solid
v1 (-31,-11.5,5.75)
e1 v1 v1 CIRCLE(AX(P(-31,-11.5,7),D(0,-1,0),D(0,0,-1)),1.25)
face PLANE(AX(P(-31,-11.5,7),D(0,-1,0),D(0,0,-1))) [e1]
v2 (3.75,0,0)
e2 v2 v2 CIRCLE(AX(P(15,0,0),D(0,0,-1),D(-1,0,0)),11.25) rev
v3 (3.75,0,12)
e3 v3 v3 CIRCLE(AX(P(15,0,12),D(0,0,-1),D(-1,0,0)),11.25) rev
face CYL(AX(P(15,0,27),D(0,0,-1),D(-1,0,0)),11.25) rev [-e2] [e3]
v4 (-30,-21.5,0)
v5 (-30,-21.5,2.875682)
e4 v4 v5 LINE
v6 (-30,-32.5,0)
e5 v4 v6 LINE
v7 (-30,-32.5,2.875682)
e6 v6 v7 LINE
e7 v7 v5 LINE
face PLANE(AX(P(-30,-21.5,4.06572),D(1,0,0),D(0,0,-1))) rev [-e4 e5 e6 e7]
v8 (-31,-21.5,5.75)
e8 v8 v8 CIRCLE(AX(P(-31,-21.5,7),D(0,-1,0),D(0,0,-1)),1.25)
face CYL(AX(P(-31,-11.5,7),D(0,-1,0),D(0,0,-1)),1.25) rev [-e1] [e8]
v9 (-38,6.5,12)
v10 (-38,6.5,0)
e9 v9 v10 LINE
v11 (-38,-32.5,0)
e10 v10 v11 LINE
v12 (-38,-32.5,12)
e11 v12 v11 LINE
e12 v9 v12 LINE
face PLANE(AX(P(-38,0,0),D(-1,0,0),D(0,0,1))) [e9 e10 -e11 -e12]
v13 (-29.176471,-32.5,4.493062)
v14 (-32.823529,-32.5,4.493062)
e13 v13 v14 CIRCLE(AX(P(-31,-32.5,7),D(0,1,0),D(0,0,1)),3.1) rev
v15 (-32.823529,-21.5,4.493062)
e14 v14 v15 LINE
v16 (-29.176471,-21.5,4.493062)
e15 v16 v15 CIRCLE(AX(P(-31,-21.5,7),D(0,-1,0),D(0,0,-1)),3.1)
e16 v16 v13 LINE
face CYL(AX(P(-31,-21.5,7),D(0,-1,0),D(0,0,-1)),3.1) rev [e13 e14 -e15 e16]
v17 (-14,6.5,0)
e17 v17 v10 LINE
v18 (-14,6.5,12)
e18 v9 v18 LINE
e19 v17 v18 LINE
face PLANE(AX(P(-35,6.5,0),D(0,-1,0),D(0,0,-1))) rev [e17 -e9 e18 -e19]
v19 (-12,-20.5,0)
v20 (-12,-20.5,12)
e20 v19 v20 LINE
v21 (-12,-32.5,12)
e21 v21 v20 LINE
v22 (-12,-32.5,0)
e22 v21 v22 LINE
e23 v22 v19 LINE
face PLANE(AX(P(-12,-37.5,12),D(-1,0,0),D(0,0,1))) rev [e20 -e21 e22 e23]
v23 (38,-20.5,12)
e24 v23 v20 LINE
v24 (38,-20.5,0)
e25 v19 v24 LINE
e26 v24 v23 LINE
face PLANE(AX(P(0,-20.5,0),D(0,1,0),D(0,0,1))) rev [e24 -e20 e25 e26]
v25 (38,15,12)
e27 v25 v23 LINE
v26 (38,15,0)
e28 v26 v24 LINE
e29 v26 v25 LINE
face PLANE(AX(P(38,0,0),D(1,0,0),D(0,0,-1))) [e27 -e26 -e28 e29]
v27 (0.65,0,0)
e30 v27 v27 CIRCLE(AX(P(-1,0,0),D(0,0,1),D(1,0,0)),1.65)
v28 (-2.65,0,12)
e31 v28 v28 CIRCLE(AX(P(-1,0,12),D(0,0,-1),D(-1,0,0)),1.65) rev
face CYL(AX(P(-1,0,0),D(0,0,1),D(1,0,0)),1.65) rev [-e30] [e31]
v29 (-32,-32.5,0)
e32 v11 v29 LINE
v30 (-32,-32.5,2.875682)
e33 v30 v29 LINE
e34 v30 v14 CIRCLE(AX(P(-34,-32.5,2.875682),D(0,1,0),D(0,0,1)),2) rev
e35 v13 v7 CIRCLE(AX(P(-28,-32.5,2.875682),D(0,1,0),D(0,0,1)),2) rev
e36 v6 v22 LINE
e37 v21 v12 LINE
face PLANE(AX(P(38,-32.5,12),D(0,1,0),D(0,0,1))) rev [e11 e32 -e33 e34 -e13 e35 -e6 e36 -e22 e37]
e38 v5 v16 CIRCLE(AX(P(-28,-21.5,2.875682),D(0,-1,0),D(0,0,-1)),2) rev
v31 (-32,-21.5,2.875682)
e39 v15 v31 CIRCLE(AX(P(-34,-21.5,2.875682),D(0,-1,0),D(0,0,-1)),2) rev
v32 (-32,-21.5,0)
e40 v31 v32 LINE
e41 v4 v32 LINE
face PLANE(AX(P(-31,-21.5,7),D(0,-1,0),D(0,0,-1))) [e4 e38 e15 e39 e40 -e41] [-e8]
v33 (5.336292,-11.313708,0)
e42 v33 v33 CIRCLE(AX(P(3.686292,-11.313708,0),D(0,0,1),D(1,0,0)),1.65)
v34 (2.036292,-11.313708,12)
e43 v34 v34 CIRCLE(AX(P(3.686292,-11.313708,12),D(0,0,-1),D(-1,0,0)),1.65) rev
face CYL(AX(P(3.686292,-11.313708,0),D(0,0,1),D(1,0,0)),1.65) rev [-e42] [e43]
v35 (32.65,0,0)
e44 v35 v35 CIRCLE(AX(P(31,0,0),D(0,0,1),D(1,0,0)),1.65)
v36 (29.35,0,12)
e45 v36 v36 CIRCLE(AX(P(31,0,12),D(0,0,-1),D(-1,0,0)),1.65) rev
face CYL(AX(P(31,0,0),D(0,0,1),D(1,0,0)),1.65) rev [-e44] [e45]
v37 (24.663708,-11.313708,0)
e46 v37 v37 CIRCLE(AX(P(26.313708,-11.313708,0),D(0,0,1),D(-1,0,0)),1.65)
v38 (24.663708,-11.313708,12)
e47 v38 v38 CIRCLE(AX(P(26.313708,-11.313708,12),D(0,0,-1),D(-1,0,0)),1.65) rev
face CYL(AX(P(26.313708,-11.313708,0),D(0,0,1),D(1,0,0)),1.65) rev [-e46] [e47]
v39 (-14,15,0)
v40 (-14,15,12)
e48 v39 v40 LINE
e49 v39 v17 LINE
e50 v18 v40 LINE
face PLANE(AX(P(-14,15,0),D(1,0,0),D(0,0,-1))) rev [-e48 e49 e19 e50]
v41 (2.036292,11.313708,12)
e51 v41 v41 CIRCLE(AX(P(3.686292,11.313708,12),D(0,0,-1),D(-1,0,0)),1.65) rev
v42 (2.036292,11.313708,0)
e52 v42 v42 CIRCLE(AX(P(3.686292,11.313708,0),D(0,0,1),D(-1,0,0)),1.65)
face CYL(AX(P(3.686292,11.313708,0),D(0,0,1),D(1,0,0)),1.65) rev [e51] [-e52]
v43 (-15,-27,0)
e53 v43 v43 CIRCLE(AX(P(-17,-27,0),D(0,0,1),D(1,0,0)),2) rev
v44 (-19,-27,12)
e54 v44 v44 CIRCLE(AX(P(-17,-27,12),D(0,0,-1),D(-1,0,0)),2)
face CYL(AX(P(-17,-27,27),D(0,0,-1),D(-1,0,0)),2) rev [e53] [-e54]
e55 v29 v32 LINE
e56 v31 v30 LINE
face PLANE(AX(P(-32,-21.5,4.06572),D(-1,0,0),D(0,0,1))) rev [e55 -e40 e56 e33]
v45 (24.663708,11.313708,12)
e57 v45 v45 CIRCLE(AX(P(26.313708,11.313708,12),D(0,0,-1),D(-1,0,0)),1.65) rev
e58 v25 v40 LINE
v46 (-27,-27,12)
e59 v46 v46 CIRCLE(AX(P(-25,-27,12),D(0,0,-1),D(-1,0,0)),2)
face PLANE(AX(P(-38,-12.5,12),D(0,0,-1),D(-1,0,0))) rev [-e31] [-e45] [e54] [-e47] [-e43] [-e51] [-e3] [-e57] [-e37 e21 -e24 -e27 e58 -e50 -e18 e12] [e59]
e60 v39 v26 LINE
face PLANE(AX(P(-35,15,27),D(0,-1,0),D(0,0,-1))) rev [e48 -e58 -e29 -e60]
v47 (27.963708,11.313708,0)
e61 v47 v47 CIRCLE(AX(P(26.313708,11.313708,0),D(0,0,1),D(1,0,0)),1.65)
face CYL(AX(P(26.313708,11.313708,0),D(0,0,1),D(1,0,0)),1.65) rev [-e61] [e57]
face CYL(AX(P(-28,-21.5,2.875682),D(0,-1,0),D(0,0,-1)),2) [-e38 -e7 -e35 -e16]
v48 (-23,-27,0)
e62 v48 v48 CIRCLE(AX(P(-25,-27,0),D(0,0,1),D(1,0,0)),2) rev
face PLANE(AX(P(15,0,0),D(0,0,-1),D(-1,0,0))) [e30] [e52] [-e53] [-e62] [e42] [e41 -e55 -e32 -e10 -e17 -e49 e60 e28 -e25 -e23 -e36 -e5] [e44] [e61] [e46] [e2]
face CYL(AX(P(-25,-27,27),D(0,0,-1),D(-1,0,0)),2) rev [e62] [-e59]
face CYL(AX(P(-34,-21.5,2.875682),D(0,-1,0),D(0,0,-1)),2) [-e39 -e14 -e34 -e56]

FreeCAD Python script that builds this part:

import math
import FreeCAD as App
import Part
import Sketcher

V = App.Vector


def edges_at(feature, points):
    """Names of the edges that pass closest to the given points."""
    edges = feature.Shape.Edges
    near = lambda p: min(range(len(edges)), key=lambda i: edges[i].distToShape(Part.Vertex(*p))[0])
    return sorted({f"Edge{near(p) + 1}" for p in points})

doc = App.newDocument("Part")
body = doc.addObject("PartDesign::Body", "Body")

sketch1 = body.newObject("Sketcher::SketchObject", "Sketch")
sketch1.AttachmentSupport = (doc.getObject("XY_Plane"), [""])
sketch1.MapMode = "FlatFace"
sketch1.addGeometry([
    Part.LineSegment(V(-35, 15, 0), V(-35, -15, 0)),
    Part.LineSegment(V(-35, -15, 0), V(35, -15, 0)),
    Part.LineSegment(V(35, -15, 0), V(35, 15, 0)),
    Part.LineSegment(V(35, 15, 0), V(-35, 15, 0)),
], False)
sketch1.addConstraint([
    Sketcher.Constraint("Coincident", 0, 2, 1, 1),
    Sketcher.Constraint("Coincident", 1, 2, 2, 1),
    Sketcher.Constraint("Coincident", 2, 2, 3, 1),
    Sketcher.Constraint("Coincident", 3, 2, 0, 1),
    Sketcher.Constraint("Vertical", 0),
    Sketcher.Constraint("Horizontal", 1),
    Sketcher.Constraint("Vertical", 2),
    Sketcher.Constraint("Horizontal", 3),
    Sketcher.Constraint("Symmetric", 0, 2, 2, 2, -1, 1),
    Sketcher.Constraint("DistanceX", 1, 1, 1, 2, 70.0),
    Sketcher.Constraint("DistanceY", 0, 2, 0, 1, 30.0),
])
pad1 = body.newObject("PartDesign::Pad", "Pad")
pad1.Profile = sketch1
pad1.Length = 27

sketch2 = body.newObject("Sketcher::SketchObject", "Sketch001")
sketch2.AttachmentSupport = (doc.getObject("XY_Plane"), [""])
sketch2.MapMode = "FlatFace"
sketch2.AttachmentOffset = App.Placement(V(0, 0, 27), App.Rotation())
sketch2.addGeometry([
    Part.LineSegment(V(28.228757, -15, 0), V(35, -15, 0)),
    Part.LineSegment(V(35, -15, 0), V(35, 0, 0)),
    Part.ArcOfCircle(Part.Circle(V(15, 0, 0), V(0, 0, 1), 20), math.radians(-48.590378), math.radians(0)),
    Part.ArcOfCircle(Part.Circle(V(15, 0, 0), V(0, 0, 1), 20), math.radians(0), math.radians(48.590378)),
    Part.LineSegment(V(35, 0, 0), V(35, 15, 0)),
    Part.LineSegment(V(35, 15, 0), V(28.228757, 15, 0)),
], False)
sketch2.addConstraint([
    Sketcher.Constraint("Coincident", 0, 2, 1, 1),
    Sketcher.Constraint("Tangent", 1, 2, 2, 2),
    Sketcher.Constraint("Coincident", 2, 1, 0, 1),
    Sketcher.Constraint("Tangent", 3, 1, 4, 1),
    Sketcher.Constraint("Coincident", 4, 2, 5, 1),
    Sketcher.Constraint("Coincident", 5, 2, 3, 2),
    Sketcher.Constraint("Horizontal", 0),
    Sketcher.Constraint("Vertical", 1),
    Sketcher.Constraint("Vertical", 4),
    Sketcher.Constraint("Horizontal", 5),
    Sketcher.Constraint("Coincident", 3, 3, 2, 3),
    Sketcher.Constraint("Equal", 2, 3),
    Sketcher.Constraint("Symmetric", 2, 1, 5, 2, -1),
    Sketcher.Constraint("Radius", 2, 20.0),
    Sketcher.Constraint("DistanceY", 1, 1, 1, 2, 15.0),
    Sketcher.Constraint("DistanceX", -1, 1, 2, 3, 15.0),
])
pocket1 = body.newObject("PartDesign::Pocket", "Pocket")
pocket1.Profile = sketch2
pocket1.Type = "ThroughAll"

sketch3 = body.newObject("Sketcher::SketchObject", "Sketch002")
sketch3.AttachmentSupport = (doc.getObject("XY_Plane"), [""])
sketch3.MapMode = "FlatFace"
sketch3.AttachmentOffset = App.Placement(V(0, 0, 27), App.Rotation())
sketch3.addGeometry([
    Part.Circle(V(31, 0, 0), V(0, 0, 1), 1.65),
    Part.Circle(V(26.313708, 11.313708, 0), V(0, 0, 1), 1.65),
    Part.Circle(V(26.313708, -11.313708, 0), V(0, 0, 1), 1.65),
    Part.Circle(V(3.686292, 11.313708, 0), V(0, 0, 1), 1.65),
    Part.Circle(V(3.686292, -11.313708, 0), V(0, 0, 1), 1.65),
    Part.Circle(V(-1, 0, 0), V(0, 0, 1), 1.65),
], False)
sketch3.addConstraint([
    Sketcher.Constraint("Equal", 0, 1),
    Sketcher.Constraint("Equal", 1, 2),
    Sketcher.Constraint("Equal", 2, 3),
    Sketcher.Constraint("Equal", 3, 4),
    Sketcher.Constraint("Equal", 4, 5),
    Sketcher.Constraint("Symmetric", 1, 3, 2, 3, -1),
    Sketcher.Constraint("Symmetric", 3, 3, 4, 3, -1),
    Sketcher.Constraint("PointOnObject", 0, 3, -1),
    Sketcher.Constraint("PointOnObject", 5, 3, -1),
    Sketcher.Constraint("Horizontal", 1, 3, 3, 3),
    Sketcher.Constraint("Diameter", 0, 3.3),
    Sketcher.Constraint("DistanceX", -1, 1, 0, 3, 31.0),
    Sketcher.Constraint("DistanceX", 5, 3, -1, 1, 1.0),
    Sketcher.Constraint("DistanceX", -1, 1, 1, 3, 26.313708),
    Sketcher.Constraint("DistanceY", -1, 1, 1, 3, 11.313708),
    Sketcher.Constraint("DistanceX", -1, 1, 3, 3, 3.686292),
])
pocket2 = body.newObject("PartDesign::Pocket", "Pocket001")
pocket2.Profile = sketch3
pocket2.Type = "ThroughAll"

sketch4 = body.newObject("Sketcher::SketchObject", "Sketch003")
sketch4.AttachmentSupport = (doc.getObject("XY_Plane"), [""])
sketch4.MapMode = "FlatFace"
sketch4.AttachmentOffset = App.Placement(V(0, 0, 27), App.Rotation())
sketch4.addGeometry([
    Part.LineSegment(V(-35, 15, 0), V(-35, 6.5, 0)),
    Part.LineSegment(V(-35, 6.5, 0), V(-14, 6.5, 0)),
    Part.LineSegment(V(-14, 6.5, 0), V(-14, 15, 0)),
    Part.LineSegment(V(-14, 15, 0), V(-35, 15, 0)),
], False)
sketch4.addConstraint([
    Sketcher.Constraint("Coincident", 0, 2, 1, 1),
    Sketcher.Constraint("Coincident", 1, 2, 2, 1),
    Sketcher.Constraint("Coincident", 2, 2, 3, 1),
    Sketcher.Constraint("Coincident", 3, 2, 0, 1),
    Sketcher.Constraint("Vertical", 0),
    Sketcher.Constraint("Horizontal", 1),
    Sketcher.Constraint("Vertical", 2),
    Sketcher.Constraint("Horizontal", 3),
    Sketcher.Constraint("DistanceX", 1, 1, 1, 2, 21.0),
    Sketcher.Constraint("DistanceY", 0, 2, 0, 1, 8.5),
    Sketcher.Constraint("DistanceX", 0, 2, -1, 1, 35.0),
    Sketcher.Constraint("DistanceY", -1, 1, 2, 2, 15.0),
])
pocket3 = body.newObject("PartDesign::Pocket", "Pocket002")
pocket3.Profile = sketch4
pocket3.Type = "ThroughAll"

sketch5 = body.newObject("Sketcher::SketchObject", "Sketch004")
sketch5.AttachmentSupport = (doc.getObject("XY_Plane"), [""])
sketch5.MapMode = "FlatFace"
sketch5.addGeometry(Part.Circle(V(15, 0, 0), V(0, 0, 1), 11.25), False)
sketch5.addConstraint([
    Sketcher.Constraint("PointOnObject", 0, 3, -1),
    Sketcher.Constraint("Diameter", 0, 22.5),
    Sketcher.Constraint("DistanceX", -1, 1, 0, 3, 15.0),
])
pocket4 = body.newObject("PartDesign::Pocket", "Pocket003")
pocket4.Profile = sketch5
pocket4.Type = "ThroughAll"
pocket4.Reversed = True

sketch6 = body.newObject("Sketcher::SketchObject", "Sketch005")
sketch6.AttachmentSupport = (doc.getObject("XY_Plane"), [""])
sketch6.MapMode = "FlatFace"
sketch6.addGeometry([
    Part.LineSegment(V(-13.5, 6.5, 0), V(-13.5, -15, 0)),
    Part.LineSegment(V(-13.5, -15, 0), V(-35, -15, 0)),
    Part.LineSegment(V(-35, -15, 0), V(-35, 6.5, 0)),
    Part.LineSegment(V(-35, 6.5, 0), V(-13.5, 6.5, 0)),
], False)
sketch6.addConstraint([
    Sketcher.Constraint("Coincident", 0, 2, 1, 1),
    Sketcher.Constraint("Coincident", 1, 2, 2, 1),
    Sketcher.Constraint("Coincident", 2, 2, 3, 1),
    Sketcher.Constraint("Coincident", 3, 2, 0, 1),
    Sketcher.Constraint("Vertical", 0),
    Sketcher.Constraint("Horizontal", 1),
    Sketcher.Constraint("Vertical", 2),
    Sketcher.Constraint("Horizontal", 3),
    Sketcher.Constraint("Equal", 3, 0),
    Sketcher.Constraint("DistanceX", 1, 2, 1, 1, 21.5),
    Sketcher.Constraint("DistanceY", 0, 2, -1, 1, 15.0),
    Sketcher.Constraint("DistanceX", 1, 2, -1, 1, 35.0),
])
pad2 = body.newObject("PartDesign::Pad", "Pad001")
pad2.Profile = sketch6
pad2.Length = 8
pad2.Reversed = True

sketch7 = body.newObject("Sketcher::SketchObject", "Sketch006")
sketch7.AttachmentSupport = (doc.getObject("XZ_Plane"), [""])
sketch7.MapMode = "FlatFace"
sketch7.AttachmentOffset = App.Placement(V(0, 0, 15), App.Rotation())
sketch7.addGeometry([
    Part.Circle(V(-17.5, 19.95, 0), V(0, 0, 1), 1.5),
    Part.Circle(V(-32.5, 19.95, 0), V(0, 0, 1), 1.5),
], False)
sketch7.addConstraint([
    Sketcher.Constraint("Equal", 0, 1),
    Sketcher.Constraint("Horizontal", 0, 3, 1, 3),
    Sketcher.Constraint("Diameter", 0, 3.0),
    Sketcher.Constraint("DistanceX", 1, 3, 0, 3, 15.0),
    Sketcher.Constraint("DistanceX", 0, 3, -1, 1, 17.5),
    Sketcher.Constraint("DistanceY", -1, 1, 0, 3, 19.95),
])
pocket5 = body.newObject("PartDesign::Pocket", "Pocket004")
pocket5.Profile = sketch7
pocket5.Type = "ThroughAll"

sketch8 = body.newObject("Sketcher::SketchObject", "Sketch007")
sketch8.AttachmentSupport = (doc.getObject("YZ_Plane"), [""])
sketch8.MapMode = "FlatFace"
sketch8.AttachmentOffset = App.Placement(V(0, 0, -35), App.Rotation())
sketch8.addGeometry([
    Part.LineSegment(V(6.5, -8, 0), V(-15, -8, 0)),
    Part.LineSegment(V(-15, -8, 0), V(-15, 27, 0)),
    Part.LineSegment(V(-15, 27, 0), V(6.5, 27, 0)),
    Part.LineSegment(V(6.5, 27, 0), V(6.5, -8, 0)),
], False)
sketch8.addConstraint([
    Sketcher.Constraint("Coincident", 0, 2, 1, 1),
    Sketcher.Constraint("Coincident", 1, 2, 2, 1),
    Sketcher.Constraint("Coincident", 2, 2, 3, 1),
    Sketcher.Constraint("Coincident", 3, 2, 0, 1),
    Sketcher.Constraint("Horizontal", 0),
    Sketcher.Constraint("Vertical", 1),
    Sketcher.Constraint("Horizontal", 2),
    Sketcher.Constraint("Vertical", 3),
    Sketcher.Constraint("DistanceY", 1, 1, 1, 2, 35.0),
    Sketcher.Constraint("DistanceX", 0, 2, 0, 1, 21.5),
    Sketcher.Constraint("DistanceX", 0, 2, -1, 1, 15.0),
    Sketcher.Constraint("DistanceY", 0, 2, -1, 1, 8.0),
])
pad3 = body.newObject("PartDesign::Pad", "Pad002")
pad3.Profile = sketch8
pad3.Length = 3
pad3.Reversed = True

sketch9 = body.newObject("Sketcher::SketchObject", "Sketch008")
sketch9.AttachmentSupport = (doc.getObject("XZ_Plane"), [""])
sketch9.MapMode = "FlatFace"
sketch9.AttachmentOffset = App.Placement(V(0, 0, 15), App.Rotation())
sketch9.addGeometry([
    Part.Circle(V(-32.5, 19.95, 0), V(0, 0, 1), 3),
    Part.Circle(V(-17.5, 19.95, 0), V(0, 0, 1), 3),
], False)
sketch9.addConstraint([
    Sketcher.Constraint("Equal", 0, 1),
    Sketcher.Constraint("Horizontal", 0, 3, 1, 3),
    Sketcher.Constraint("Diameter", 0, 6.0),
    Sketcher.Constraint("DistanceX", 0, 3, 1, 3, 15.0),
    Sketcher.Constraint("DistanceX", 0, 3, -1, 1, 32.5),
    Sketcher.Constraint("DistanceY", -1, 1, 0, 3, 19.95),
])
pocket6 = body.newObject("PartDesign::Pocket", "Pocket005")
pocket6.Profile = sketch9
pocket6.Length = 15

sketch10 = body.newObject("Sketcher::SketchObject", "Sketch009")
sketch10.AttachmentSupport = (doc.getObject("XY_Plane"), [""])
sketch10.MapMode = "FlatFace"
sketch10.AttachmentOffset = App.Placement(V(0, 0, 27), App.Rotation())
sketch10.addGeometry([
    Part.LineSegment(V(28.228757, -15, 0), V(35, -15, 0)),
    Part.LineSegment(V(35, -15, 0), V(35, 15, 0)),
    Part.LineSegment(V(35, 15, 0), V(28.228757, 15, 0)),
    Part.LineSegment(V(28.228757, 15, 0), V(28.228757, -15, 0)),
    Part.Circle(V(31, 0, 0), V(0, 0, 1), 1.65),
], False)
sketch10.addConstraint([
    Sketcher.Constraint("Coincident", 0, 2, 1, 1),
    Sketcher.Constraint("Coincident", 1, 2, 2, 1),
    Sketcher.Constraint("Coincident", 2, 2, 3, 1),
    Sketcher.Constraint("Coincident", 3, 2, 0, 1),
    Sketcher.Constraint("Horizontal", 0),
    Sketcher.Constraint("Vertical", 1),
    Sketcher.Constraint("Horizontal", 2),
    Sketcher.Constraint("Vertical", 3),
    Sketcher.Constraint("PointOnObject", 4, 3, -1),
    Sketcher.Constraint("Diameter", 4, 3.3),
    Sketcher.Constraint("DistanceY", 1, 1, 1, 2, 30.0),
    Sketcher.Constraint("DistanceX", -1, 1, 4, 3, 31.0),
    Sketcher.Constraint("DistanceX", -1, 1, 0, 2, 35.0),
    Sketcher.Constraint("DistanceY", 0, 2, -1, 1, 15.0),
    Sketcher.Constraint("DistanceX", 0, 1, 0, 2, 6.771243),
])
pad4 = body.newObject("PartDesign::Pad", "Pad003")
pad4.Profile = sketch10
pad4.Length = 27
pad4.Reversed = True

sketch11 = body.newObject("Sketcher::SketchObject", "Sketch010")
sketch11.AttachmentSupport = (doc.getObject("YZ_Plane"), [""])
sketch11.MapMode = "FlatFace"
sketch11.AttachmentOffset = App.Placement(V(0, 0, 35), App.Rotation())
sketch11.addGeometry([
    Part.LineSegment(V(15, 27, 0), V(-15, 27, 0)),
    Part.LineSegment(V(-15, 27, 0), V(-15, 0, 0)),
    Part.LineSegment(V(-15, 0, 0), V(15, 0, 0)),
    Part.LineSegment(V(15, 0, 0), V(15, 27, 0)),
], False)
sketch11.addConstraint([
    Sketcher.Constraint("Coincident", 0, 2, 1, 1),
    Sketcher.Constraint("Coincident", 1, 2, 2, 1),
    Sketcher.Constraint("Coincident", 2, 2, 3, 1),
    Sketcher.Constraint("Coincident", 3, 2, 0, 1),
    Sketcher.Constraint("Horizontal", 0),
    Sketcher.Constraint("Vertical", 1),
    Sketcher.Constraint("Horizontal", 2),
    Sketcher.Constraint("Vertical", 3),
    Sketcher.Constraint("Symmetric", 1, 2, 2, 2, -1, 1),
    Sketcher.Constraint("DistanceX", 0, 2, 0, 1, 30.0),
    Sketcher.Constraint("DistanceY", 1, 2, 1, 1, 27.0),
])
pad5 = body.newObject("PartDesign::Pad", "Pad004")
pad5.Profile = sketch11
pad5.Length = 3

sketch12 = body.newObject("Sketcher::SketchObject", "Sketch011")
sketch12.AttachmentSupport = (doc.getObject("XZ_Plane"), [""])
sketch12.MapMode = "FlatFace"
sketch12.AttachmentOffset = App.Placement(V(0, 0, 20.5), App.Rotation())
sketch12.addGeometry([
    Part.LineSegment(V(-13.5, 0, 0), V(38, 0, 0)),
    Part.LineSegment(V(38, 0, 0), V(38, 27, 0)),
    Part.LineSegment(V(38, 27, 0), V(-38, 27, 0)),
    Part.LineSegment(V(-38, 27, 0), V(-38, -8, 0)),
    Part.LineSegment(V(-38, -8, 0), V(-13.5, -8, 0)),
    Part.LineSegment(V(-13.5, -8, 0), V(-13.5, 0, 0)),
    Part.Circle(V(-32.5, 19.95, 0), V(0, 0, 1), 3),
    Part.Circle(V(-17.5, 19.95, 0), V(0, 0, 1), 3),
], False)
sketch12.addConstraint([
    Sketcher.Constraint("Coincident", 0, 2, 1, 1),
    Sketcher.Constraint("Coincident", 1, 2, 2, 1),
    Sketcher.Constraint("Coincident", 2, 2, 3, 1),
    Sketcher.Constraint("Coincident", 3, 2, 4, 1),
    Sketcher.Constraint("Coincident", 4, 2, 5, 1),
    Sketcher.Constraint("Coincident", 5, 2, 0, 1),
    Sketcher.Constraint("Horizontal", 0),
    Sketcher.Constraint("Vertical", 1),
    Sketcher.Constraint("Horizontal", 2),
    Sketcher.Constraint("Vertical", 3),
    Sketcher.Constraint("Horizontal", 4),
    Sketcher.Constraint("Vertical", 5),
    Sketcher.Constraint("Equal", 6, 7),
    Sketcher.Constraint("PointOnObject", 0, 2, -1),
    Sketcher.Constraint("Horizontal", 6, 3, 7, 3),
    Sketcher.Constraint("Diameter", 6, 6.0),
    Sketcher.Constraint("DistanceX", 2, 2, 2, 1, 76.0),
    Sketcher.Constraint("DistanceY", 1, 1, 1, 2, 27.0),
    Sketcher.Constraint("DistanceY", 3, 2, 3, 1, 35.0),
    Sketcher.Constraint("DistanceX", 0, 1, 0, 2, 51.5),
    Sketcher.Constraint("DistanceX", -1, 1, 0, 2, 38.0),
    Sketcher.Constraint("DistanceX", 6, 3, 7, 3, 15.0),
    Sketcher.Constraint("DistanceX", 7, 3, 4, 2, 4.0),
    Sketcher.Constraint("DistanceY", -1, 1, 6, 3, 19.95),
])
pad6 = body.newObject("PartDesign::Pad", "Pad005")
pad6.Profile = sketch12
pad6.Length = 5.5
pad6.Reversed = True

sketch13 = body.newObject("Sketcher::SketchObject", "Sketch012")
sketch13.AttachmentSupport = (doc.getObject("XZ_Plane"), [""])
sketch13.MapMode = "FlatFace"
sketch13.AttachmentOffset = App.Placement(V(0, 0, 20.5), App.Rotation())
sketch13.addGeometry([
    Part.LineSegment(V(-38, 27, 0), V(-38, 12, 0)),
    Part.LineSegment(V(-38, 12, 0), V(-12, 12, 0)),
    Part.LineSegment(V(-12, 12, 0), V(-12, 27, 0)),
    Part.LineSegment(V(-12, 27, 0), V(-38, 27, 0)),
], False)
sketch13.addConstraint([
    Sketcher.Constraint("Coincident", 0, 2, 1, 1),
    Sketcher.Constraint("Coincident", 1, 2, 2, 1),
    Sketcher.Constraint("Coincident", 2, 2, 3, 1),
    Sketcher.Constraint("Coincident", 3, 2, 0, 1),
    Sketcher.Constraint("Vertical", 0),
    Sketcher.Constraint("Horizontal", 1),
    Sketcher.Constraint("Vertical", 2),
    Sketcher.Constraint("Horizontal", 3),
    Sketcher.Constraint("DistanceX", 1, 1, 1, 2, 26.0),
    Sketcher.Constraint("DistanceY", 0, 2, 0, 1, 15.0),
    Sketcher.Constraint("DistanceX", 0, 2, -1, 1, 38.0),
    Sketcher.Constraint("DistanceY", -1, 1, 0, 2, 12.0),
])
pocket7 = body.newObject("PartDesign::Pocket", "Pocket006")
pocket7.Profile = sketch13
pocket7.Length = 8

sketch14 = body.newObject("Sketcher::SketchObject", "Sketch013")
sketch14.AttachmentSupport = (doc.getObject("XY_Plane"), [""])
sketch14.MapMode = "FlatFace"
sketch14.AttachmentOffset = App.Placement(V(0, 0, -8), App.Rotation())
sketch14.addGeometry([
    Part.LineSegment(V(-14, 15, 0), V(38, 15, 0)),
    Part.LineSegment(V(38, 15, 0), V(38, -20.5, 0)),
    Part.LineSegment(V(38, -20.5, 0), V(-13.5, -20.5, 0)),
    Part.LineSegment(V(-13.5, -20.5, 0), V(-13.5, 6.5, 0)),
    Part.LineSegment(V(-13.5, 6.5, 0), V(-14, 6.5, 0)),
    Part.LineSegment(V(-14, 6.5, 0), V(-14, 15, 0)),
    Part.Circle(V(15, 0, 0), V(0, 0, 1), 11.25),
], False)
sketch14.addConstraint([
    Sketcher.Constraint("Coincident", 0, 2, 1, 1),
    Sketcher.Constraint("Coincident", 1, 2, 2, 1),
    Sketcher.Constraint("Coincident", 2, 2, 3, 1),
    Sketcher.Constraint("Coincident", 3, 2, 4, 1),
    Sketcher.Constraint("Coincident", 4, 2, 5, 1),
    Sketcher.Constraint("Coincident", 5, 2, 0, 1),
    Sketcher.Constraint("Horizontal", 0),
    Sketcher.Constraint("Vertical", 1),
    Sketcher.Constraint("Horizontal", 2),
    Sketcher.Constraint("Vertical", 3),
    Sketcher.Constraint("Horizontal", 4),
    Sketcher.Constraint("Vertical", 5),
    Sketcher.Constraint("PointOnObject", 6, 3, -1),
    Sketcher.Constraint("Diameter", 6, 22.5),
    Sketcher.Constraint("DistanceX", 0, 1, 0, 2, 52.0),
    Sketcher.Constraint("DistanceY", 3, 1, 3, 2, 27.0),
    Sketcher.Constraint("DistanceX", 2, 2, 2, 1, 51.5),
    Sketcher.Constraint("DistanceY", 1, 2, 1, 1, 35.5),
    Sketcher.Constraint("DistanceX", -1, 1, 6, 3, 15.0),
    Sketcher.Constraint("DistanceX", -1, 1, 0, 2, 38.0),
    Sketcher.Constraint("DistanceY", -1, 1, 0, 2, 15.0),
])
pad7 = body.newObject("PartDesign::Pad", "Pad006")
pad7.Profile = sketch14
pad7.Length = 8

sketch15 = body.newObject("Sketcher::SketchObject", "Sketch014")
sketch15.AttachmentSupport = (doc.getObject("XY_Plane"), [""])
sketch15.MapMode = "FlatFace"
sketch15.AttachmentOffset = App.Placement(V(0, 0, -8), App.Rotation())
sketch15.addGeometry([
    Part.LineSegment(V(27.816006, -16, 0), V(2.183994, -16, 0)),
    Part.ArcOfCircle(Part.Circle(V(15, 0, 0), V(0, 0, 1), 20.5), math.radians(-51.30526), math.radians(231.30526)),
], False)
sketch15.addConstraint([
    Sketcher.Constraint("Coincident", 0, 1, 1, 1),
    Sketcher.Constraint("Coincident", 1, 2, 0, 2),
    Sketcher.Constraint("Horizontal", 0),
    Sketcher.Constraint("PointOnObject", 1, 3, -1),
    Sketcher.Constraint("Radius", 1, 20.5),
    Sketcher.Constraint("DistanceX", -1, 1, 1, 3, 15.0),
    Sketcher.Constraint("DistanceY", 0, 1, -1, 1, 16.0),
])
pocket8 = body.newObject("PartDesign::Pocket", "Pocket007")
pocket8.Profile = sketch15
pocket8.Length = 8
pocket8.Reversed = True

sketch16 = body.newObject("Sketcher::SketchObject", "Sketch015")
sketch16.AttachmentSupport = (doc.getObject("XZ_Plane"), [""])
sketch16.MapMode = "FlatFace"
sketch16.AttachmentOffset = App.Placement(V(0, 0, 20.5), App.Rotation())
sketch16.addGeometry([
    Part.LineSegment(V(-38, 12, 0), V(-38, -8, 0)),
    Part.LineSegment(V(-38, -8, 0), V(-12, -8, 0)),
    Part.LineSegment(V(-12, -8, 0), V(-12, 12, 0)),
    Part.LineSegment(V(-12, 12, 0), V(-38, 12, 0)),
], False)
sketch16.addConstraint([
    Sketcher.Constraint("Coincident", 0, 2, 1, 1),
    Sketcher.Constraint("Coincident", 1, 2, 2, 1),
    Sketcher.Constraint("Coincident", 2, 2, 3, 1),
    Sketcher.Constraint("Coincident", 3, 2, 0, 1),
    Sketcher.Constraint("Vertical", 0),
    Sketcher.Constraint("Horizontal", 1),
    Sketcher.Constraint("Vertical", 2),
    Sketcher.Constraint("Horizontal", 3),
    Sketcher.Constraint("DistanceX", 1, 1, 1, 2, 26.0),
    Sketcher.Constraint("DistanceY", 0, 2, 0, 1, 20.0),
    Sketcher.Constraint("DistanceX", 0, 2, -1, 1, 38.0),
    Sketcher.Constraint("DistanceY", 0, 2, -1, 1, 8.0),
])
pad8 = body.newObject("PartDesign::Pad", "Pad007")
pad8.Profile = sketch16
pad8.Length = 17

sketch17 = body.newObject("Sketcher::SketchObject", "Sketch016")
sketch17.AttachmentSupport = (doc.getObject("XY_Plane"), [""])
sketch17.MapMode = "FlatFace"
sketch17.AttachmentOffset = App.Placement(V(0, 0, -8), App.Rotation())
sketch17.addGeometry([
    Part.Circle(V(-17, -27, 0), V(0, 0, 1), 2),
    Part.Circle(V(-25, -27, 0), V(0, 0, 1), 2),
], False)
sketch17.addConstraint([
    Sketcher.Constraint("Equal", 0, 1),
    Sketcher.Constraint("Horizontal", 0, 3, 1, 3),
    Sketcher.Constraint("Diameter", 0, 4.0),
    Sketcher.Constraint("DistanceX", 0, 3, -1, 1, 17.0),
    Sketcher.Constraint("DistanceY", 0, 3, -1, 1, 27.0),
    Sketcher.Constraint("DistanceX", 1, 3, -1, 1, 25.0),
])
pocket9 = body.newObject("PartDesign::Pocket", "Pocket008")
pocket9.Profile = sketch17
pocket9.Type = "ThroughAll"
pocket9.Reversed = True

sketch18 = body.newObject("Sketcher::SketchObject", "Sketch017")
sketch18.AttachmentSupport = (doc.getObject("XY_Plane"), [""])
sketch18.MapMode = "FlatFace"
sketch18.AttachmentOffset = App.Placement(V(0, 0, -8), App.Rotation())
sketch18.addGeometry([
    Part.Circle(V(-17, -27, 0), V(0, 0, 1), 3.75),
    Part.Circle(V(-25, -27, 0), V(0, 0, 1), 3.75),
], False)
sketch18.addConstraint([
    Sketcher.Constraint("Equal", 0, 1),
    Sketcher.Constraint("Horizontal", 0, 3, 1, 3),
    Sketcher.Constraint("Diameter", 0, 7.5),
    Sketcher.Constraint("DistanceX", 0, 3, -1, 1, 17.0),
    Sketcher.Constraint("DistanceY", 0, 3, -1, 1, 27.0),
    Sketcher.Constraint("DistanceX", 1, 3, -1, 1, 25.0),
])
pocket10 = body.newObject("PartDesign::Pocket", "Pocket009")
pocket10.Profile = sketch18
pocket10.Length = 5
pocket10.Reversed = True

sketch19 = body.newObject("Sketcher::SketchObject", "Sketch018")
sketch19.AttachmentSupport = (doc.getObject("XZ_Plane"), [""])
sketch19.MapMode = "FlatFace"
sketch19.AttachmentOffset = App.Placement(V(0, 0, 37.5), App.Rotation())
sketch19.addGeometry(Part.Circle(V(-31, 7, 0), V(0, 0, 1), 3.1), False)
sketch19.addConstraint([
    Sketcher.Constraint("Diameter", 0, 6.2),
    Sketcher.Constraint("DistanceX", 0, 3, -1, 1, 31.0),
    Sketcher.Constraint("DistanceY", -1, 1, 0, 3, 7.0),
])
pocket11 = body.newObject("PartDesign::Pocket", "Pocket010")
pocket11.Profile = sketch19
pocket11.Length = 16

sketch20 = body.newObject("Sketcher::SketchObject", "Sketch019")
sketch20.AttachmentSupport = (doc.getObject("XZ_Plane"), [""])
sketch20.MapMode = "FlatFace"
sketch20.AttachmentOffset = App.Placement(V(0, 0, 21.5), App.Rotation())
sketch20.addGeometry(Part.Circle(V(-31, 7, 0), V(0, 0, 1), 1.25), False)
sketch20.addConstraint([
    Sketcher.Constraint("Diameter", 0, 2.5),
    Sketcher.Constraint("DistanceX", 0, 3, -1, 1, 31.0),
    Sketcher.Constraint("DistanceY", -1, 1, 0, 3, 7.0),
])
pocket12 = body.newObject("PartDesign::Pocket", "Pocket011")
pocket12.Profile = sketch20
pocket12.Length = 10

sketch21 = body.newObject("Sketcher::SketchObject", "Sketch020")
sketch21.AttachmentSupport = (doc.getObject("XZ_Plane"), [""])
sketch21.MapMode = "FlatFace"
sketch21.AttachmentOffset = App.Placement(V(0, 0, 37.5), App.Rotation())
sketch21.addGeometry([
    Part.LineSegment(V(-32, 4.06572, 0), V(-32, -8, 0)),
    Part.LineSegment(V(-32, -8, 0), V(-30, -8, 0)),
    Part.LineSegment(V(-30, -8, 0), V(-30, 4.06572, 0)),
    Part.LineSegment(V(-30, 4.06572, 0), V(-32, 4.06572, 0)),
], False)
sketch21.addConstraint([
    Sketcher.Constraint("Coincident", 0, 2, 1, 1),
    Sketcher.Constraint("Coincident", 1, 2, 2, 1),
    Sketcher.Constraint("Coincident", 2, 2, 3, 1),
    Sketcher.Constraint("Coincident", 3, 2, 0, 1),
    Sketcher.Constraint("Vertical", 0),
    Sketcher.Constraint("Horizontal", 1),
    Sketcher.Constraint("Vertical", 2),
    Sketcher.Constraint("Horizontal", 3),
    Sketcher.Constraint("DistanceX", 1, 1, 1, 2, 2.0),
    Sketcher.Constraint("DistanceX", 0, 2, -1, 1, 32.0),
    Sketcher.Constraint("DistanceY", 0, 2, -1, 1, 8.0),
    Sketcher.Constraint("DistanceY", 0, 2, 0, 1, 12.06572),
])
pocket13 = body.newObject("PartDesign::Pocket", "Pocket012")
pocket13.Profile = sketch21
pocket13.Length = 16
doc.recompute()

fillet = body.newObject("PartDesign::Fillet", "Fillet")
fillet.Base = (pocket13, edges_at(pocket13, [(-32, -29.5, 4.066), (-30, -29.5, 4.066)]))
fillet.Radius = 2

sketch22 = body.newObject("Sketcher::SketchObject", "Sketch021")
sketch22.AttachmentSupport = (doc.getObject("YZ_Plane"), [""])
sketch22.MapMode = "FlatFace"
sketch22.AttachmentOffset = App.Placement(V(0, 0, -38), App.Rotation())
sketch22.addGeometry([
    Part.LineSegment(V(-32.5, -8, 0), V(-37.5, -8, 0)),
    Part.LineSegment(V(-37.5, -8, 0), V(-37.5, 12, 0)),
    Part.LineSegment(V(-37.5, 12, 0), V(-32.5, 12, 0)),
    Part.LineSegment(V(-32.5, 12, 0), V(-32.5, -8, 0)),
], False)
sketch22.addConstraint([
    Sketcher.Constraint("Coincident", 0, 2, 1, 1),
    Sketcher.Constraint("Coincident", 1, 2, 2, 1),
    Sketcher.Constraint("Coincident", 2, 2, 3, 1),
    Sketcher.Constraint("Coincident", 3, 2, 0, 1),
    Sketcher.Constraint("Horizontal", 0),
    Sketcher.Constraint("Vertical", 1),
    Sketcher.Constraint("Horizontal", 2),
    Sketcher.Constraint("Vertical", 3),
    Sketcher.Constraint("DistanceX", 0, 2, 0, 1, 5.0),
    Sketcher.Constraint("DistanceY", 1, 1, 1, 2, 20.0),
    Sketcher.Constraint("DistanceY", 0, 2, -1, 1, 8.0),
    Sketcher.Constraint("DistanceX", 0, 2, -1, 1, 37.5),
])
pocket14 = body.newObject("PartDesign::Pocket", "Pocket013")
pocket14.Profile = sketch22
pocket14.Type = "ThroughAll"
pocket14.Reversed = True

sketch23 = body.newObject("Sketcher::SketchObject", "Sketch022")
sketch23.AttachmentSupport = (doc.getObject("YZ_Plane"), [""])
sketch23.MapMode = "FlatFace"
sketch23.AttachmentOffset = App.Placement(V(0, 0, 38), App.Rotation())
sketch23.addGeometry([
    Part.LineSegment(V(15, 0, 0), V(-32.5, 0, 0)),
    Part.LineSegment(V(-32.5, 0, 0), V(-32.5, -8, 0)),
    Part.LineSegment(V(-32.5, -8, 0), V(15, -8, 0)),
    Part.LineSegment(V(15, -8, 0), V(15, 0, 0)),
], False)
sketch23.addConstraint([
    Sketcher.Constraint("Coincident", 0, 2, 1, 1),
    Sketcher.Constraint("Coincident", 1, 2, 2, 1),
    Sketcher.Constraint("Coincident", 2, 2, 3, 1),
    Sketcher.Constraint("Coincident", 3, 2, 0, 1),
    Sketcher.Constraint("Horizontal", 0),
    Sketcher.Constraint("Vertical", 1),
    Sketcher.Constraint("Horizontal", 2),
    Sketcher.Constraint("Vertical", 3),
    Sketcher.Constraint("PointOnObject", 0, 2, -1),
    Sketcher.Constraint("DistanceY", 1, 2, 1, 1, 8.0),
    Sketcher.Constraint("DistanceX", 0, 2, 0, 1, 47.5),
    Sketcher.Constraint("DistanceX", -1, 1, 2, 2, 15.0),
])
pocket15 = body.newObject("PartDesign::Pocket", "Pocket014")
pocket15.Profile = sketch23
pocket15.Type = "ThroughAll"

sketch24 = body.newObject("Sketcher::SketchObject", "Sketch023")
sketch24.AttachmentSupport = (doc.getObject("YZ_Plane"), [""])
sketch24.MapMode = "FlatFace"
sketch24.AttachmentOffset = App.Placement(V(0, 0, -38), App.Rotation())
sketch24.addGeometry([
    Part.LineSegment(V(15, 12, 0), V(-20.5, 12, 0)),
    Part.LineSegment(V(-20.5, 12, 0), V(-20.5, 27, 0)),
    Part.LineSegment(V(-20.5, 27, 0), V(15, 27, 0)),
    Part.LineSegment(V(15, 27, 0), V(15, 12, 0)),
], False)
sketch24.addConstraint([
    Sketcher.Constraint("Coincident", 0, 2, 1, 1),
    Sketcher.Constraint("Coincident", 1, 2, 2, 1),
    Sketcher.Constraint("Coincident", 2, 2, 3, 1),
    Sketcher.Constraint("Coincident", 3, 2, 0, 1),
    Sketcher.Constraint("Horizontal", 0),
    Sketcher.Constraint("Vertical", 1),
    Sketcher.Constraint("Horizontal", 2),
    Sketcher.Constraint("Vertical", 3),
    Sketcher.Constraint("DistanceY", 1, 1, 1, 2, 15.0),
    Sketcher.Constraint("DistanceX", 0, 2, 0, 1, 35.5),
    Sketcher.Constraint("DistanceY", -1, 1, 0, 2, 12.0),
    Sketcher.Constraint("DistanceX", -1, 1, 2, 2, 15.0),
])
pocket16 = body.newObject("PartDesign::Pocket", "Pocket015")
pocket16.Profile = sketch24
pocket16.Type = "ThroughAll"
pocket16.Reversed = True

doc.recompute()
